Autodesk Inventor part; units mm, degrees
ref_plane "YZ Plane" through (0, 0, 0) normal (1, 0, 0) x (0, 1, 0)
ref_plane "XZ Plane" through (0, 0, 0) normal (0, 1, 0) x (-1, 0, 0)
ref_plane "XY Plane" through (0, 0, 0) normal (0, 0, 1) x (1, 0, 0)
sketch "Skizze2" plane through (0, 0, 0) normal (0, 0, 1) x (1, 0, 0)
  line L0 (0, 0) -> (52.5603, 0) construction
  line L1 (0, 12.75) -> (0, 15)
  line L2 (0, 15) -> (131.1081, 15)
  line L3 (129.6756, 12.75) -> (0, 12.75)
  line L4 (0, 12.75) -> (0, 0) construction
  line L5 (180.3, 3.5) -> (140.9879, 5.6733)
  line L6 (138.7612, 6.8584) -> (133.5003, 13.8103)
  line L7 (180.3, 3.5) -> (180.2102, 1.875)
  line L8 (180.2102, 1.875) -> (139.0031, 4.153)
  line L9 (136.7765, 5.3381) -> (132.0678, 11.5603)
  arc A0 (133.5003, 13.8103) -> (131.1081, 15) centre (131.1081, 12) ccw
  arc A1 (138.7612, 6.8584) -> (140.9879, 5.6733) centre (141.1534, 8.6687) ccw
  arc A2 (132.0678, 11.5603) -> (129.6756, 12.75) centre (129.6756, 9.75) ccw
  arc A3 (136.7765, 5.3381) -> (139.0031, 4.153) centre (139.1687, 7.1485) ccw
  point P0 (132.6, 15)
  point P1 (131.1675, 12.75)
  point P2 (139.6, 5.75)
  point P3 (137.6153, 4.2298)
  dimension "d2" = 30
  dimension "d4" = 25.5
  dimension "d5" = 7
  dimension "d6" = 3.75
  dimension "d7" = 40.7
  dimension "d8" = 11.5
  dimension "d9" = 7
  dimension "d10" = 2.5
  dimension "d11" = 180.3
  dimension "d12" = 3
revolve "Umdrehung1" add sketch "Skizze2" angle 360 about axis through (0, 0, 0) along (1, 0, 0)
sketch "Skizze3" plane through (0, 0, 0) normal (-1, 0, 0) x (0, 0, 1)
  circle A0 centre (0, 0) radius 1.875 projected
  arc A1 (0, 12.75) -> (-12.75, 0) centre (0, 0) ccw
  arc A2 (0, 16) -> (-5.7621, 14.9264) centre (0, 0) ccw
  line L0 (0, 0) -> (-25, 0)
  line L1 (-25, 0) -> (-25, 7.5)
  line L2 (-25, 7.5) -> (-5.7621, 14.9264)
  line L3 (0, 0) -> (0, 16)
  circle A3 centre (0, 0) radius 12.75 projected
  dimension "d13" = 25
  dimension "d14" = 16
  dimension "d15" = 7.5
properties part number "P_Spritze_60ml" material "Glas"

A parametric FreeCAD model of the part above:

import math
import FreeCAD as App
import Part
import Sketcher

V = App.Vector

doc = App.newDocument("Part")
body = doc.addObject("PartDesign::Body", "Body")

# Sketch on XY plane
sketch1 = body.newObject("Sketcher::SketchObject", "Sketch")
sketch1.AttachmentSupport = (doc.getObject("XY_Plane"), [""])
sketch1.MapMode = "FlatFace"
sketch1.addGeometry(Part.LineSegment(V(0, 15, 0), V(0, 12.75, 0)), False)
sketch1.addGeometry(Part.LineSegment(V(0, 12.75, 0), V(129.6756, 12.75, 0)), False)
sketch1.addGeometry(Part.ArcOfCircle(Part.Circle(V(129.6756, 9.75, 0), V(0, 0, 1), 2.999968), math.radians(37.116655), math.radians(90)), False)
sketch1.addGeometry(Part.LineSegment(V(132.0678, 11.5603, 0), V(136.7765, 5.3381, 0)), False)
sketch1.addGeometry(Part.ArcOfCircle(Part.Circle(V(139.1687, 7.1485, 0), V(0, 0, 1), 3.000028), math.radians(-142.881822), math.radians(-93.164257)), False)
sketch1.addGeometry(Part.LineSegment(V(139.0031, 4.153, 0), V(180.2102, 1.875, 0)), False)
sketch1.addGeometry(Part.LineSegment(V(180.2102, 1.875, 0), V(180.3, 3.5, 0)), False)
sketch1.addGeometry(Part.LineSegment(V(180.3, 3.5, 0), V(140.9879, 5.6733, 0)), False)
sketch1.addGeometry(Part.ArcOfCircle(Part.Circle(V(141.1534, 8.6687, 0), V(0, 0, 1), 2.999968), math.radians(-142.883345), math.radians(-93.162456)), False)
sketch1.addGeometry(Part.LineSegment(V(138.7612, 6.8584, 0), V(133.5003, 13.8103, 0)), False)
sketch1.addGeometry(Part.ArcOfCircle(Part.Circle(V(131.1081, 12, 0), V(0, 0, 1), 2.999968), math.radians(37.116655), math.radians(90)), False)
sketch1.addGeometry(Part.LineSegment(V(131.1081, 15, 0), V(0, 15, 0)), False)
sketch1.addConstraint(Sketcher.Constraint("Coincident", 0, 2, 1, 1))
sketch1.addConstraint(Sketcher.Constraint("Tangent", 1, 2, 2, 2))
sketch1.addConstraint(Sketcher.Constraint("Tangent", 2, 1, 3, 1))
sketch1.addConstraint(Sketcher.Constraint("Tangent", 3, 2, 4, 1))
sketch1.addConstraint(Sketcher.Constraint("Tangent", 4, 2, 5, 1))
sketch1.addConstraint(Sketcher.Constraint("Coincident", 5, 2, 6, 1))
sketch1.addConstraint(Sketcher.Constraint("Coincident", 6, 2, 7, 1))
sketch1.addConstraint(Sketcher.Constraint("Tangent", 7, 2, 8, 2))
sketch1.addConstraint(Sketcher.Constraint("Tangent", 8, 1, 9, 1))
sketch1.addConstraint(Sketcher.Constraint("Tangent", 9, 2, 10, 1))
sketch1.addConstraint(Sketcher.Constraint("Tangent", 10, 2, 11, 1))
sketch1.addConstraint(Sketcher.Constraint("Coincident", 11, 2, 0, 1))
sketch1.addConstraint(Sketcher.Constraint("Vertical", 0))
sketch1.addConstraint(Sketcher.Constraint("Horizontal", 1))
sketch1.addConstraint(Sketcher.Constraint("Horizontal", 11))
sketch1.addConstraint(Sketcher.Constraint("Equal", 2, 4))
sketch1.addConstraint(Sketcher.Constraint("Equal", 4, 8))
sketch1.addConstraint(Sketcher.Constraint("Equal", 8, 10))
sketch1.addConstraint(Sketcher.Constraint("PointOnObject", 0, 2, -2))
sketch1.addConstraint(Sketcher.Constraint("Perpendicular", 5, 6))
sketch1.addConstraint(Sketcher.Constraint("Perpendicular", 6, 7))
sketch1.addConstraint(Sketcher.Constraint("Parallel", 3, 9))
sketch1.addConstraint(Sketcher.Constraint("Radius", 2, 3.0))
sketch1.addConstraint(Sketcher.Constraint("DistanceX", -1, 1, 6, 2, 180.3))
sketch1.addConstraint(Sketcher.Constraint("DistanceY", -1, 1, 10, 3, 12.0))
sketch1.addConstraint(Sketcher.Constraint("DistanceY", 0, 2, 0, 1, 2.25))
sketch1.addConstraint(Sketcher.Constraint("DistanceY", -1, 1, 6, 2, 3.5))
sketch1.addConstraint(Sketcher.Constraint("Distance", 5, 41.27))
sketch1.addConstraint(Sketcher.Constraint("DistanceX", 11, 2, 11, 1, 131.108))
sketch1.addConstraint(Sketcher.Constraint("DistanceX", 2, 1, 7, 2, 8.92))
sketch1.addConstraint(Sketcher.Constraint("DistanceY", 8, 1, 4, 3, 0.29))
sketch1.addConstraint(Sketcher.Constraint("Distance", 3, 7.803))
revolution = body.newObject("PartDesign::Revolution", "Revolution")
revolution.Profile = sketch1
revolution.ReferenceAxis = (sketch1, ["H_Axis"])
revolution.Angle = 360

doc.recompute()
